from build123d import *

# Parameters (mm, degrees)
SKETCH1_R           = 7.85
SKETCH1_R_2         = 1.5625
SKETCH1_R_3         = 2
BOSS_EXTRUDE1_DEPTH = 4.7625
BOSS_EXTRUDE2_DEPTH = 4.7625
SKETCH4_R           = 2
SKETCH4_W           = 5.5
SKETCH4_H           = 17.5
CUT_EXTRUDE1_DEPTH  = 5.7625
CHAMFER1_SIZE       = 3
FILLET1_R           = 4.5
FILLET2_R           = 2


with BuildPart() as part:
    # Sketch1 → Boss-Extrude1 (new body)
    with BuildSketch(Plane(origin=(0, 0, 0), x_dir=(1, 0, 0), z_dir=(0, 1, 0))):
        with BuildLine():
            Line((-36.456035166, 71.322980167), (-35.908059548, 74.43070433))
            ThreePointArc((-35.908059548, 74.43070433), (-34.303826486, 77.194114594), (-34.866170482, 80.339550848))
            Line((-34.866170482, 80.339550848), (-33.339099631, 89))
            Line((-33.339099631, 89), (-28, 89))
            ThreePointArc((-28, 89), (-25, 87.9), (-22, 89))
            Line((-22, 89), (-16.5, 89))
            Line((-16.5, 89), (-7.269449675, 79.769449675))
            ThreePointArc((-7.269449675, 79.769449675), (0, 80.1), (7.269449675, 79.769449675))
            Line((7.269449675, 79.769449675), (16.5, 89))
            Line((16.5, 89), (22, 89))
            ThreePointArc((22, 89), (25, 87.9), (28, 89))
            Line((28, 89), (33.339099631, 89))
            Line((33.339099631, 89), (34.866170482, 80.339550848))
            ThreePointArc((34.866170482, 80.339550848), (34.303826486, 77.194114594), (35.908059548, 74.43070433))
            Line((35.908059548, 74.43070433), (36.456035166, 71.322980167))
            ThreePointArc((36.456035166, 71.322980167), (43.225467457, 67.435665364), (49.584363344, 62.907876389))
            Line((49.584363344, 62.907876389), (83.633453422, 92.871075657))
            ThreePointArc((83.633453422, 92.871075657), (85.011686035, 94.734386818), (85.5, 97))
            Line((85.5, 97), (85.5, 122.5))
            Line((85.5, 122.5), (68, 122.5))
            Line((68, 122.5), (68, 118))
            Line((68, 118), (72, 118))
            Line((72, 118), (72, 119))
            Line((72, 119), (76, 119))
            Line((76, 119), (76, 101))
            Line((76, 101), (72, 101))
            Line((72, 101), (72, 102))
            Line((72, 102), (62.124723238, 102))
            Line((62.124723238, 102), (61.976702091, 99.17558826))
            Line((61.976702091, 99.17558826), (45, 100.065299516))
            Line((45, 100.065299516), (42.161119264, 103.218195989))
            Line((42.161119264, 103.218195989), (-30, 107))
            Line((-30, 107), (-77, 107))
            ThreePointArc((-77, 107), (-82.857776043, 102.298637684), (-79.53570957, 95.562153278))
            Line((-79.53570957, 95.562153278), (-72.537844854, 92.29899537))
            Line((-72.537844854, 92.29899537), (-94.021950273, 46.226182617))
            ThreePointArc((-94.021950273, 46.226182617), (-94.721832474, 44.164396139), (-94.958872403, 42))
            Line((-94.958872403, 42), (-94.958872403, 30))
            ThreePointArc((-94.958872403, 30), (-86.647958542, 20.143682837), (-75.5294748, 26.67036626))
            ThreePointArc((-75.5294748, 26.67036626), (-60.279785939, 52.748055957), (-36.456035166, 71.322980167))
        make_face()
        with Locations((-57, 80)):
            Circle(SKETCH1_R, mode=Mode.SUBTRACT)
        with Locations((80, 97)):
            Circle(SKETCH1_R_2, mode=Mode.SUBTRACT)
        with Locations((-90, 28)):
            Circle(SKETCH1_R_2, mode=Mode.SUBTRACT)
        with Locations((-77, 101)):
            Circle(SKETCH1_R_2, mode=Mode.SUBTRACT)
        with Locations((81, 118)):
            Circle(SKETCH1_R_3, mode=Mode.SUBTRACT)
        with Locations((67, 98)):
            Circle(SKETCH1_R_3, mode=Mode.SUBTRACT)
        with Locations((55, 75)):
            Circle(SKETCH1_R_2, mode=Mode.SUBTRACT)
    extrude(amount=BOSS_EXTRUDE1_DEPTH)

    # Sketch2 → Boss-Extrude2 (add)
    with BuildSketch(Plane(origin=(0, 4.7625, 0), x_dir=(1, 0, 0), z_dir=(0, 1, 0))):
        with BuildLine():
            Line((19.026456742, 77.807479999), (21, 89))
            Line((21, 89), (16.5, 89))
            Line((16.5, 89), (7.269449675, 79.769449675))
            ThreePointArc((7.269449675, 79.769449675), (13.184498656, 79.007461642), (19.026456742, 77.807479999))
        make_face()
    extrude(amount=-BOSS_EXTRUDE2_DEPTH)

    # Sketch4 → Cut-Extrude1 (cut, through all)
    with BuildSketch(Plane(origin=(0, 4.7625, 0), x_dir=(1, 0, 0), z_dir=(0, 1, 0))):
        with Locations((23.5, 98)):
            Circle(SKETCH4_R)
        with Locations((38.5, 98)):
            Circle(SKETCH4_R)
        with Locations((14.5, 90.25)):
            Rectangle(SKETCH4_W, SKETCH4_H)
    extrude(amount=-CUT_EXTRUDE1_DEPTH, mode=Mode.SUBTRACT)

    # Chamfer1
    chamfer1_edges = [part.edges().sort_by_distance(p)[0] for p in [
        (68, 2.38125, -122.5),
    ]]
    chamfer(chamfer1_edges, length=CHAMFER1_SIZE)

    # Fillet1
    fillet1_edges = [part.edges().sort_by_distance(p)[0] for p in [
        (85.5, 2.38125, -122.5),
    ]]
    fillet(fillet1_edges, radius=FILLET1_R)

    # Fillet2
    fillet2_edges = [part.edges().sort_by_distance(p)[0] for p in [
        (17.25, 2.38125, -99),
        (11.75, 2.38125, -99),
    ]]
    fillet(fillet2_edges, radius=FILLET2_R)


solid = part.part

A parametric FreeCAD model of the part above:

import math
import FreeCAD as App
import Part
import Sketcher

V = App.Vector
Q = App.Units.Quantity


def edges_at(feature, points):
    """Names of the edges that pass closest to the given points."""
    edges = feature.Shape.Edges
    near = lambda p: min(range(len(edges)), key=lambda i: edges[i].distToShape(Part.Vertex(*p))[0])
    return sorted({f"Edge{near(p) + 1}" for p in points})


def add_polygon(sketch, points):
    """Adds a closed chain of lines whose ends are joined by coincident constraints."""
    first, n = sketch.GeometryCount, len(points)
    for a, b in zip(points, points[1:] + points[:1]):
        sketch.addGeometry(Part.LineSegment(App.Vector(*a, 0), App.Vector(*b, 0)), False)
    for i in range(n):
        sketch.addConstraint(Sketcher.Constraint("Coincident", first + i, 2, first + (i + 1) % n, 1))

doc = App.newDocument("Part")
body = doc.addObject("PartDesign::Body", "Body")

# Sketch on XZ plane
sketch1 = body.newObject("Sketcher::SketchObject", "Sketch")
sketch1.AttachmentSupport = (doc.getObject("XZ_Plane"), [""])
sketch1.MapMode = "FlatFace"
sketch1.addGeometry([
    Part.LineSegment(V(-36.5, -71.3, 0), V(-35.9, -74.4, 0)),  # 0
    Part.ArcOfCircle(Part.Circle(V(-38.9, -78, 0), V(0, 0, 1), 4.6), math.radians(-30), math.radians(50)),  # 1
    Part.LineSegment(V(-34.9, -80.3, 0), V(-33.3, -89, 0)),  # 2
    Part.LineSegment(V(-33.3, -89, 0), V(-28, -89, 0)),  # 3
    Part.ArcOfCircle(Part.Circle(V(-25, -92.5, 0), V(0, 0, 1), 4.6), math.radians(50), math.radians(130)),  # 4
    Part.LineSegment(V(-22, -89, 0), V(-16.5, -89, 0)),  # 5
    Part.LineSegment(V(-16.5, -89, 0), V(-7.3, -79.8, 0)),  # 6
    Part.ArcOfCircle(Part.Circle(V(0, 0, 0), V(0, 0, 1), 80.1), math.radians(-95.21), math.radians(-84.79)),  # 7
    Part.LineSegment(V(7.3, -79.8, 0), V(16.5, -89, 0)),  # 8
    Part.LineSegment(V(16.5, -89, 0), V(22, -89, 0)),  # 9
    Part.ArcOfCircle(Part.Circle(V(25, -92.5, 0), V(0, 0, 1), 4.6), math.radians(50), math.radians(130)),  # 10
    Part.LineSegment(V(28, -89, 0), V(33.3, -89, 0)),  # 11
    Part.LineSegment(V(33.3, -89, 0), V(34.9, -80.3, 0)),  # 12
    Part.ArcOfCircle(Part.Circle(V(38.9, -78, 0), V(0, 0, 1), 4.6), math.radians(130), math.radians(210)),  # 13
    Part.LineSegment(V(35.9, -74.4, 0), V(36.5, -71.3, 0)),  # 14
    Part.ArcOfCircle(Part.Circle(V(0, 0, 0), V(0, 0, 1), 80.1), math.radians(-62.93), math.radians(-51.75)),  # 15
    Part.LineSegment(V(49.6, -62.9, 0), V(83.6, -92.9, 0)),  # 16
    Part.ArcOfCircle(Part.Circle(V(80, -97, 0), V(0, 0, 1), 5.5), math.radians(0), math.radians(49)),  # 17
    Part.LineSegment(V(85.5, -97, 0), V(85.5, -122.5, 0)),  # 18
    Part.LineSegment(V(85.5, -122.5, 0), V(68, -122.5, 0)),  # 19
    Part.LineSegment(V(68, -122.5, 0), V(68, -118, 0)),  # 20
    Part.LineSegment(V(68, -118, 0), V(72, -118, 0)),  # 21
    Part.LineSegment(V(72, -118, 0), V(72, -119, 0)),  # 22
    Part.LineSegment(V(72, -119, 0), V(76, -119, 0)),  # 23
    Part.LineSegment(V(76, -119, 0), V(76, -101, 0)),  # 24
    Part.LineSegment(V(76, -101, 0), V(72, -101, 0)),  # 25
    Part.LineSegment(V(72, -101, 0), V(72, -102, 0)),  # 26
    Part.LineSegment(V(72, -102, 0), V(62.1, -102, 0)),  # 27
    Part.LineSegment(V(62.1, -102, 0), V(62, -99.2, 0)),  # 28
    Part.LineSegment(V(62, -99.2, 0), V(45, -100.1, 0)),  # 29
    Part.LineSegment(V(45, -100.1, 0), V(42.2, -103.2, 0)),  # 30
    Part.LineSegment(V(42.2, -103.2, 0), V(-30, -107, 0)),  # 31
    Part.LineSegment(V(-30, -107, 0), V(-77, -107, 0)),  # 32
    Part.ArcOfCircle(Part.Circle(V(-77, -101, 0), V(0, 0, 1), 6), math.radians(115), math.radians(270)),  # 33
    Part.LineSegment(V(-79.5, -95.6, 0), V(-72.5, -92.3, 0)),  # 34
    Part.LineSegment(V(-72.5, -92.3, 0), V(-94, -46.2, 0)),  # 35
    Part.ArcOfCircle(Part.Circle(V(-85, -42, 0), V(0, 0, 1), 10), math.radians(-180), math.radians(-155)),  # 36
    Part.LineSegment(V(-95, -42, 0), V(-95, -30, 0)),  # 37
    Part.ArcOfCircle(Part.Circle(V(-85, -30, 0), V(0, 0, 1), 10), math.radians(19), math.radians(180)),  # 38
    Part.ArcOfCircle(Part.Circle(V(0, 0, 0), V(0, 0, 1), 80.1), math.radians(-161), math.radians(-117)),  # 39
    Part.Circle(V(-90, -28, 0), V(0, 0, 1), 1.6),  # 40
    Part.Circle(V(-57, -80, 0), V(0, 0, 1), 7.8),  # 41
    Part.Circle(V(-77, -101, 0), V(0, 0, 1), 1.6),  # 42
    Part.Circle(V(55, -75, 0), V(0, 0, 1), 1.6),  # 43
    Part.Circle(V(67, -98, 0), V(0, 0, 1), 2),  # 44
    Part.Circle(V(80, -97, 0), V(0, 0, 1), 1.6),  # 45
    Part.Circle(V(81, -118, 0), V(0, 0, 1), 2),  # 46
], False)
sketch1.addConstraint([
    Sketcher.Constraint("Coincident", 0, 2, 1, 2),
    Sketcher.Constraint("Coincident", 1, 1, 2, 1),
    Sketcher.Constraint("Coincident", 2, 2, 3, 1),
    Sketcher.Constraint("Coincident", 3, 2, 4, 2),
    Sketcher.Constraint("Coincident", 4, 1, 5, 1),
    Sketcher.Constraint("Coincident", 5, 2, 6, 1),
    Sketcher.Constraint("Coincident", 6, 2, 7, 1),
    Sketcher.Constraint("Coincident", 7, 2, 8, 1),
    Sketcher.Constraint("Coincident", 8, 2, 9, 1),
    Sketcher.Constraint("Coincident", 9, 2, 10, 2),
    Sketcher.Constraint("Coincident", 10, 1, 11, 1),
    Sketcher.Constraint("Coincident", 11, 2, 12, 1),
    Sketcher.Constraint("Coincident", 12, 2, 13, 2),
    Sketcher.Constraint("Coincident", 13, 1, 14, 1),
    Sketcher.Constraint("Coincident", 14, 2, 15, 1),
    Sketcher.Constraint("Coincident", 15, 2, 16, 1),
    Sketcher.Constraint("Tangent", 16, 2, 17, 2),
    Sketcher.Constraint("Tangent", 17, 1, 18, 1),
    Sketcher.Constraint("Coincident", 18, 2, 19, 1),
    Sketcher.Constraint("Coincident", 19, 2, 20, 1),
    Sketcher.Constraint("Coincident", 20, 2, 21, 1),
    Sketcher.Constraint("Coincident", 21, 2, 22, 1),
    Sketcher.Constraint("Coincident", 22, 2, 23, 1),
    Sketcher.Constraint("Coincident", 23, 2, 24, 1),
    Sketcher.Constraint("Coincident", 24, 2, 25, 1),
    Sketcher.Constraint("Coincident", 25, 2, 26, 1),
    Sketcher.Constraint("Coincident", 26, 2, 27, 1),
    Sketcher.Constraint("Coincident", 27, 2, 28, 1),
    Sketcher.Constraint("Coincident", 28, 2, 29, 1),
    Sketcher.Constraint("Coincident", 29, 2, 30, 1),
    Sketcher.Constraint("Coincident", 30, 2, 31, 1),
    Sketcher.Constraint("Coincident", 31, 2, 32, 1),
    Sketcher.Constraint("Tangent", 32, 2, 33, 2),
    Sketcher.Constraint("Tangent", 33, 1, 34, 1),
    Sketcher.Constraint("Coincident", 34, 2, 35, 1),
    Sketcher.Constraint("Tangent", 35, 2, 36, 2),
    Sketcher.Constraint("Tangent", 36, 1, 37, 1),
    Sketcher.Constraint("Tangent", 37, 2, 38, 2),
    Sketcher.Constraint("Tangent", 38, 1, 39, 1),
    Sketcher.Constraint("Coincident", 39, 2, 0, 1),
    Sketcher.Constraint("Horizontal", 3),
    Sketcher.Constraint("Horizontal", 5),
    Sketcher.Constraint("Horizontal", 9),
    Sketcher.Constraint("Horizontal", 11),
    Sketcher.Constraint("Vertical", 18),
    Sketcher.Constraint("Horizontal", 19),
    Sketcher.Constraint("Vertical", 20),
    Sketcher.Constraint("Horizontal", 21),
    Sketcher.Constraint("Vertical", 22),
    Sketcher.Constraint("Horizontal", 23),
    Sketcher.Constraint("Vertical", 24),
    Sketcher.Constraint("Horizontal", 25),
    Sketcher.Constraint("Vertical", 26),
    Sketcher.Constraint("Horizontal", 27),
    Sketcher.Constraint("Horizontal", 32),
    Sketcher.Constraint("Vertical", 37),
    Sketcher.Constraint("Coincident", 7, 3, -1, 1),
    Sketcher.Constraint("Coincident", 15, 3, -1, 1),
    Sketcher.Constraint("Coincident", 39, 3, -1, 1),
    Sketcher.Constraint("Coincident", 42, 3, 33, 3),
    Sketcher.Constraint("Coincident", 45, 3, 17, 3),
    Sketcher.Constraint("Equal", 1, 4),
    Sketcher.Constraint("Equal", 4, 10),
    Sketcher.Constraint("Equal", 10, 13),
    Sketcher.Constraint("Equal", 7, 15),
    Sketcher.Constraint("Equal", 36, 38),
    Sketcher.Constraint("Equal", 15, 39),
    Sketcher.Constraint("Equal", 40, 42),
    Sketcher.Constraint("Equal", 42, 43),
    Sketcher.Constraint("Equal", 43, 45),
    Sketcher.Constraint("Equal", 44, 46),
    Sketcher.Constraint("Symmetric", 4, 3, 10, 3, -2),
    Sketcher.Constraint("Symmetric", 1, 3, 13, 3, -2),
    Sketcher.Constraint("Symmetric", 5, 2, 8, 2, -2),
    Sketcher.Constraint("Symmetric", 2, 2, 11, 2, -2),
    Sketcher.Constraint("Parallel", 0, 2),
    Sketcher.Constraint("Perpendicular", 6, 8),
    Sketcher.Constraint("Parallel", 12, 14),
    Sketcher.Constraint("Perpendicular", 28, 29),
    Sketcher.Constraint("Parallel", 29, 31),
    Sketcher.Constraint("Perpendicular", 34, 35),
    Sketcher.Constraint("Horizontal", 3, 2, 4, 1),
    Sketcher.Constraint("Horizontal", 6, 2, 7, 2),
    Sketcher.Constraint("Horizontal", 1, 1, 12, 2),
    Sketcher.Constraint("Horizontal", 0, 2, 13, 1),
    Sketcher.Constraint("Horizontal", 46, 3, 20, 2),
    Sketcher.Constraint("Horizontal", 42, 3, 24, 2),
    Sketcher.Constraint("Vertical", 22, 2, 25, 2),
    Sketcher.Constraint("Equal", 21, 23),
    Sketcher.Constraint("Equal", 22, 26),
    Sketcher.Constraint("Diameter", 44, Q("4 mm")),
    Sketcher.Constraint("Radius", 33, Q("6 mm")),
    Sketcher.Constraint("Radius", 36, Q("10 mm")),
    Sketcher.Constraint("Diameter", 41, Q("15.7 mm")),
    Sketcher.Constraint("Radius", 7, Q("80.1 mm")),
    Sketcher.Constraint("Radius", 17, Q("5.5 mm")),
    Sketcher.Constraint("DistanceX", 21, 1, 21, 2, Q("4 mm")),
    Sketcher.Constraint("DistanceX", 32, 2, 32, 1, Q("47 mm")),
    Sketcher.Constraint("DistanceY", 22, 2, 22, 1, Q("1 mm")),
    Sketcher.Constraint("DistanceY", 24, 1, 24, 2, Q("18 mm")),
    Sketcher.Constraint("DistanceY", 37, 1, 37, 2, Q("12 mm")),
    Sketcher.Constraint("Angle", 0, Q("-80 deg")),
    Sketcher.Constraint("Angle", 28, Q("93 deg")),
    Sketcher.Constraint("Angle", 30, Q("-132 deg")),
    Sketcher.Constraint("Angle", 34, Q("25 deg")),
    Sketcher.Constraint("Distance", 29, Q("17 mm")),
    Sketcher.Constraint("Diameter", 40, Q("3.125 mm")),
    Sketcher.Constraint("DistanceX", 5, 1, 5, 2, Q("5.5 mm")),
    Sketcher.Constraint("DistanceX", 19, 2, 19, 1, Q("17.5 mm")),
    Sketcher.Constraint("DistanceY", 18, 2, 18, 1, Q("25.5 mm")),
    Sketcher.Constraint("DistanceY", 20, 1, 20, 2, Q("4.5 mm")),
    Sketcher.Constraint("DistanceY", 1, 3, -1, 1, Q("78 mm")),
    Sketcher.Constraint("DistanceX", 4, 3, -1, 1, Q("25 mm")),
    Sketcher.Constraint("DistanceX", -1, 1, 17, 3, Q("80 mm")),
    Sketcher.Constraint("DistanceY", 17, 3, -1, 1, Q("97 mm")),
    Sketcher.Constraint("DistanceX", 33, 3, -1, 1, Q("77 mm")),
    Sketcher.Constraint("DistanceY", 36, 3, -1, 1, Q("42 mm")),
    Sketcher.Constraint("DistanceX", 40, 3, -1, 1, Q("90 mm")),
    Sketcher.Constraint("DistanceY", 40, 3, -1, 1, Q("28 mm")),
    Sketcher.Constraint("DistanceX", 41, 3, -1, 1, Q("57 mm")),
    Sketcher.Constraint("DistanceY", 41, 3, -1, 1, Q("80 mm")),
    Sketcher.Constraint("DistanceX", -1, 1, 43, 3, Q("55 mm")),
    Sketcher.Constraint("DistanceY", 43, 3, -1, 1, Q("75 mm")),
    Sketcher.Constraint("DistanceX", -1, 1, 44, 3, Q("67 mm")),
    Sketcher.Constraint("DistanceY", 44, 3, -1, 1, Q("98 mm")),
    Sketcher.Constraint("DistanceX", -1, 1, 46, 3, Q("81 mm")),
    Sketcher.Constraint("DistanceY", 2, 2, -1, 1, Q("89 mm")),
    Sketcher.Constraint("DistanceX", 3, 2, -1, 1, Q("28 mm")),
    Sketcher.Constraint("DistanceX", -1, 1, 29, 2, Q("45 mm")),
    Sketcher.Constraint("Radius", 1, Q("4.640909 mm")),
    Sketcher.Constraint("DistanceX", 3, 1, 3, 2, Q("5.3391 mm")),
    Sketcher.Constraint("DistanceY", 29, 2, -1, 1, Q("100.0653 mm")),
    Sketcher.Constraint("DistanceY", 1, 1, 6, 2, Q("0.570101 mm")),
    Sketcher.Constraint("DistanceX", 0, 2, -1, 1, Q("35.90806 mm")),
    Sketcher.Constraint("DistanceX", 14, 2, 15, 2, Q("13.128328 mm")),
])
pad1 = body.newObject("PartDesign::Pad", "Pad")
pad1.Profile = sketch1
pad1.Length = 4.7625
pad1.Reversed = True

# Sketch on XZ plane
sketch2 = body.newObject("Sketcher::SketchObject", "Sketch001")
sketch2.AttachmentSupport = (doc.getObject("XZ_Plane"), [""])
sketch2.MapMode = "FlatFace"
sketch2.AttachmentOffset = App.Placement(V(0, 0, -4.7625), App.Rotation())
sketch2.addGeometry([
    Part.LineSegment(V(19, -77.8, 0), V(21, -89, 0)),
    Part.LineSegment(V(21, -89, 0), V(16.5, -89, 0)),
    Part.LineSegment(V(16.5, -89, 0), V(7.3, -79.8, 0)),
    Part.ArcOfCircle(Part.Circle(V(0, 0, 0), V(0, 0, 1), 80.1), math.radians(-84.79), math.radians(-76.26)),
], False)
sketch2.addConstraint([
    Sketcher.Constraint("Coincident", 0, 2, 1, 1),
    Sketcher.Constraint("Coincident", 1, 2, 2, 1),
    Sketcher.Constraint("Coincident", 2, 2, 3, 1),
    Sketcher.Constraint("Coincident", 3, 2, 0, 1),
    Sketcher.Constraint("Horizontal", 1),
    Sketcher.Constraint("Coincident", 3, 3, -1, 1),
    Sketcher.Constraint("Radius", 3, Q("80.1 mm")),
    Sketcher.Constraint("Angle", 0, Q("-80 deg")),
    Sketcher.Constraint("Angle", 2, Q("135 deg")),
    Sketcher.Constraint("DistanceX", 1, 2, 1, 1, Q("4.5 mm")),
    Sketcher.Constraint("DistanceX", -1, 1, 0, 2, Q("21 mm")),
    Sketcher.Constraint("DistanceY", 0, 2, -1, 1, Q("89 mm")),
])
pad2 = body.newObject("PartDesign::Pad", "Pad001")
pad2.Profile = sketch2
pad2.Length = 4.7625

# Sketch on XZ plane
sketch3 = body.newObject("Sketcher::SketchObject", "Sketch002")
sketch3.AttachmentSupport = (doc.getObject("XZ_Plane"), [""])
sketch3.MapMode = "FlatFace"
sketch3.AttachmentOffset = App.Placement(V(0, 0, -4.7625), App.Rotation())
sketch3.addGeometry(Part.Circle(V(23.5, -98, 0), V(0, 0, 1), 2), False)  # 0
sketch3.addGeometry(Part.Circle(V(38.5, -98, 0), V(0, 0, 1), 2), False)  # 1
add_polygon(sketch3, [(11.8, -99), (11.8, -81.5), (17.2, -81.5), (17.2, -99)])  # lines 2-5
sketch3.addConstraint([
    Sketcher.Constraint("Vertical", 2),
    Sketcher.Constraint("Horizontal", 3),
    Sketcher.Constraint("Vertical", 4),
    Sketcher.Constraint("Horizontal", 5),
    Sketcher.Constraint("Equal", 0, 1),
    Sketcher.Constraint("Horizontal", 0, 3, 1, 3),
    Sketcher.Constraint("Diameter", 0, Q("4 mm")),
    Sketcher.Constraint("DistanceX", 3, 1, 3, 2, Q("5.5 mm")),
    Sketcher.Constraint("DistanceY", 2, 1, 2, 2, Q("17.5 mm")),
    Sketcher.Constraint("DistanceY", 0, 3, -1, 1, Q("98 mm")),
    Sketcher.Constraint("DistanceY", 4, 2, -1, 1, Q("99 mm")),
    Sketcher.Constraint("DistanceX", 0, 3, 1, 3, Q("15 mm")),
    Sketcher.Constraint("DistanceX", -1, 1, 0, 3, Q("23.5 mm")),
    Sketcher.Constraint("DistanceX", -1, 1, 2, 2, Q("11.75 mm")),
])
pocket1 = body.newObject("PartDesign::Pocket", "Pocket")
pocket1.Profile = sketch3
pocket1.Type = "ThroughAll"
pocket1.Reversed = True
doc.recompute()

chamfer = body.newObject("PartDesign::Chamfer", "Chamfer")
chamfer.Base = (pocket1, edges_at(pocket1, [(68, 2.381, -122.5)]))
chamfer.Size = 3
doc.recompute()

fillet = body.newObject("PartDesign::Fillet", "Fillet")
fillet.Base = (chamfer, edges_at(chamfer, [(85.5, 2.381, -122.5)]))
fillet.Radius = 4.5
doc.recompute()

fillet2 = body.newObject("PartDesign::Fillet", "Fillet001")
fillet2.Base = (fillet, edges_at(fillet, [(17.25, 2.381, -99), (11.75, 2.381, -99)]))
fillet2.Radius = 2

doc.recompute()
